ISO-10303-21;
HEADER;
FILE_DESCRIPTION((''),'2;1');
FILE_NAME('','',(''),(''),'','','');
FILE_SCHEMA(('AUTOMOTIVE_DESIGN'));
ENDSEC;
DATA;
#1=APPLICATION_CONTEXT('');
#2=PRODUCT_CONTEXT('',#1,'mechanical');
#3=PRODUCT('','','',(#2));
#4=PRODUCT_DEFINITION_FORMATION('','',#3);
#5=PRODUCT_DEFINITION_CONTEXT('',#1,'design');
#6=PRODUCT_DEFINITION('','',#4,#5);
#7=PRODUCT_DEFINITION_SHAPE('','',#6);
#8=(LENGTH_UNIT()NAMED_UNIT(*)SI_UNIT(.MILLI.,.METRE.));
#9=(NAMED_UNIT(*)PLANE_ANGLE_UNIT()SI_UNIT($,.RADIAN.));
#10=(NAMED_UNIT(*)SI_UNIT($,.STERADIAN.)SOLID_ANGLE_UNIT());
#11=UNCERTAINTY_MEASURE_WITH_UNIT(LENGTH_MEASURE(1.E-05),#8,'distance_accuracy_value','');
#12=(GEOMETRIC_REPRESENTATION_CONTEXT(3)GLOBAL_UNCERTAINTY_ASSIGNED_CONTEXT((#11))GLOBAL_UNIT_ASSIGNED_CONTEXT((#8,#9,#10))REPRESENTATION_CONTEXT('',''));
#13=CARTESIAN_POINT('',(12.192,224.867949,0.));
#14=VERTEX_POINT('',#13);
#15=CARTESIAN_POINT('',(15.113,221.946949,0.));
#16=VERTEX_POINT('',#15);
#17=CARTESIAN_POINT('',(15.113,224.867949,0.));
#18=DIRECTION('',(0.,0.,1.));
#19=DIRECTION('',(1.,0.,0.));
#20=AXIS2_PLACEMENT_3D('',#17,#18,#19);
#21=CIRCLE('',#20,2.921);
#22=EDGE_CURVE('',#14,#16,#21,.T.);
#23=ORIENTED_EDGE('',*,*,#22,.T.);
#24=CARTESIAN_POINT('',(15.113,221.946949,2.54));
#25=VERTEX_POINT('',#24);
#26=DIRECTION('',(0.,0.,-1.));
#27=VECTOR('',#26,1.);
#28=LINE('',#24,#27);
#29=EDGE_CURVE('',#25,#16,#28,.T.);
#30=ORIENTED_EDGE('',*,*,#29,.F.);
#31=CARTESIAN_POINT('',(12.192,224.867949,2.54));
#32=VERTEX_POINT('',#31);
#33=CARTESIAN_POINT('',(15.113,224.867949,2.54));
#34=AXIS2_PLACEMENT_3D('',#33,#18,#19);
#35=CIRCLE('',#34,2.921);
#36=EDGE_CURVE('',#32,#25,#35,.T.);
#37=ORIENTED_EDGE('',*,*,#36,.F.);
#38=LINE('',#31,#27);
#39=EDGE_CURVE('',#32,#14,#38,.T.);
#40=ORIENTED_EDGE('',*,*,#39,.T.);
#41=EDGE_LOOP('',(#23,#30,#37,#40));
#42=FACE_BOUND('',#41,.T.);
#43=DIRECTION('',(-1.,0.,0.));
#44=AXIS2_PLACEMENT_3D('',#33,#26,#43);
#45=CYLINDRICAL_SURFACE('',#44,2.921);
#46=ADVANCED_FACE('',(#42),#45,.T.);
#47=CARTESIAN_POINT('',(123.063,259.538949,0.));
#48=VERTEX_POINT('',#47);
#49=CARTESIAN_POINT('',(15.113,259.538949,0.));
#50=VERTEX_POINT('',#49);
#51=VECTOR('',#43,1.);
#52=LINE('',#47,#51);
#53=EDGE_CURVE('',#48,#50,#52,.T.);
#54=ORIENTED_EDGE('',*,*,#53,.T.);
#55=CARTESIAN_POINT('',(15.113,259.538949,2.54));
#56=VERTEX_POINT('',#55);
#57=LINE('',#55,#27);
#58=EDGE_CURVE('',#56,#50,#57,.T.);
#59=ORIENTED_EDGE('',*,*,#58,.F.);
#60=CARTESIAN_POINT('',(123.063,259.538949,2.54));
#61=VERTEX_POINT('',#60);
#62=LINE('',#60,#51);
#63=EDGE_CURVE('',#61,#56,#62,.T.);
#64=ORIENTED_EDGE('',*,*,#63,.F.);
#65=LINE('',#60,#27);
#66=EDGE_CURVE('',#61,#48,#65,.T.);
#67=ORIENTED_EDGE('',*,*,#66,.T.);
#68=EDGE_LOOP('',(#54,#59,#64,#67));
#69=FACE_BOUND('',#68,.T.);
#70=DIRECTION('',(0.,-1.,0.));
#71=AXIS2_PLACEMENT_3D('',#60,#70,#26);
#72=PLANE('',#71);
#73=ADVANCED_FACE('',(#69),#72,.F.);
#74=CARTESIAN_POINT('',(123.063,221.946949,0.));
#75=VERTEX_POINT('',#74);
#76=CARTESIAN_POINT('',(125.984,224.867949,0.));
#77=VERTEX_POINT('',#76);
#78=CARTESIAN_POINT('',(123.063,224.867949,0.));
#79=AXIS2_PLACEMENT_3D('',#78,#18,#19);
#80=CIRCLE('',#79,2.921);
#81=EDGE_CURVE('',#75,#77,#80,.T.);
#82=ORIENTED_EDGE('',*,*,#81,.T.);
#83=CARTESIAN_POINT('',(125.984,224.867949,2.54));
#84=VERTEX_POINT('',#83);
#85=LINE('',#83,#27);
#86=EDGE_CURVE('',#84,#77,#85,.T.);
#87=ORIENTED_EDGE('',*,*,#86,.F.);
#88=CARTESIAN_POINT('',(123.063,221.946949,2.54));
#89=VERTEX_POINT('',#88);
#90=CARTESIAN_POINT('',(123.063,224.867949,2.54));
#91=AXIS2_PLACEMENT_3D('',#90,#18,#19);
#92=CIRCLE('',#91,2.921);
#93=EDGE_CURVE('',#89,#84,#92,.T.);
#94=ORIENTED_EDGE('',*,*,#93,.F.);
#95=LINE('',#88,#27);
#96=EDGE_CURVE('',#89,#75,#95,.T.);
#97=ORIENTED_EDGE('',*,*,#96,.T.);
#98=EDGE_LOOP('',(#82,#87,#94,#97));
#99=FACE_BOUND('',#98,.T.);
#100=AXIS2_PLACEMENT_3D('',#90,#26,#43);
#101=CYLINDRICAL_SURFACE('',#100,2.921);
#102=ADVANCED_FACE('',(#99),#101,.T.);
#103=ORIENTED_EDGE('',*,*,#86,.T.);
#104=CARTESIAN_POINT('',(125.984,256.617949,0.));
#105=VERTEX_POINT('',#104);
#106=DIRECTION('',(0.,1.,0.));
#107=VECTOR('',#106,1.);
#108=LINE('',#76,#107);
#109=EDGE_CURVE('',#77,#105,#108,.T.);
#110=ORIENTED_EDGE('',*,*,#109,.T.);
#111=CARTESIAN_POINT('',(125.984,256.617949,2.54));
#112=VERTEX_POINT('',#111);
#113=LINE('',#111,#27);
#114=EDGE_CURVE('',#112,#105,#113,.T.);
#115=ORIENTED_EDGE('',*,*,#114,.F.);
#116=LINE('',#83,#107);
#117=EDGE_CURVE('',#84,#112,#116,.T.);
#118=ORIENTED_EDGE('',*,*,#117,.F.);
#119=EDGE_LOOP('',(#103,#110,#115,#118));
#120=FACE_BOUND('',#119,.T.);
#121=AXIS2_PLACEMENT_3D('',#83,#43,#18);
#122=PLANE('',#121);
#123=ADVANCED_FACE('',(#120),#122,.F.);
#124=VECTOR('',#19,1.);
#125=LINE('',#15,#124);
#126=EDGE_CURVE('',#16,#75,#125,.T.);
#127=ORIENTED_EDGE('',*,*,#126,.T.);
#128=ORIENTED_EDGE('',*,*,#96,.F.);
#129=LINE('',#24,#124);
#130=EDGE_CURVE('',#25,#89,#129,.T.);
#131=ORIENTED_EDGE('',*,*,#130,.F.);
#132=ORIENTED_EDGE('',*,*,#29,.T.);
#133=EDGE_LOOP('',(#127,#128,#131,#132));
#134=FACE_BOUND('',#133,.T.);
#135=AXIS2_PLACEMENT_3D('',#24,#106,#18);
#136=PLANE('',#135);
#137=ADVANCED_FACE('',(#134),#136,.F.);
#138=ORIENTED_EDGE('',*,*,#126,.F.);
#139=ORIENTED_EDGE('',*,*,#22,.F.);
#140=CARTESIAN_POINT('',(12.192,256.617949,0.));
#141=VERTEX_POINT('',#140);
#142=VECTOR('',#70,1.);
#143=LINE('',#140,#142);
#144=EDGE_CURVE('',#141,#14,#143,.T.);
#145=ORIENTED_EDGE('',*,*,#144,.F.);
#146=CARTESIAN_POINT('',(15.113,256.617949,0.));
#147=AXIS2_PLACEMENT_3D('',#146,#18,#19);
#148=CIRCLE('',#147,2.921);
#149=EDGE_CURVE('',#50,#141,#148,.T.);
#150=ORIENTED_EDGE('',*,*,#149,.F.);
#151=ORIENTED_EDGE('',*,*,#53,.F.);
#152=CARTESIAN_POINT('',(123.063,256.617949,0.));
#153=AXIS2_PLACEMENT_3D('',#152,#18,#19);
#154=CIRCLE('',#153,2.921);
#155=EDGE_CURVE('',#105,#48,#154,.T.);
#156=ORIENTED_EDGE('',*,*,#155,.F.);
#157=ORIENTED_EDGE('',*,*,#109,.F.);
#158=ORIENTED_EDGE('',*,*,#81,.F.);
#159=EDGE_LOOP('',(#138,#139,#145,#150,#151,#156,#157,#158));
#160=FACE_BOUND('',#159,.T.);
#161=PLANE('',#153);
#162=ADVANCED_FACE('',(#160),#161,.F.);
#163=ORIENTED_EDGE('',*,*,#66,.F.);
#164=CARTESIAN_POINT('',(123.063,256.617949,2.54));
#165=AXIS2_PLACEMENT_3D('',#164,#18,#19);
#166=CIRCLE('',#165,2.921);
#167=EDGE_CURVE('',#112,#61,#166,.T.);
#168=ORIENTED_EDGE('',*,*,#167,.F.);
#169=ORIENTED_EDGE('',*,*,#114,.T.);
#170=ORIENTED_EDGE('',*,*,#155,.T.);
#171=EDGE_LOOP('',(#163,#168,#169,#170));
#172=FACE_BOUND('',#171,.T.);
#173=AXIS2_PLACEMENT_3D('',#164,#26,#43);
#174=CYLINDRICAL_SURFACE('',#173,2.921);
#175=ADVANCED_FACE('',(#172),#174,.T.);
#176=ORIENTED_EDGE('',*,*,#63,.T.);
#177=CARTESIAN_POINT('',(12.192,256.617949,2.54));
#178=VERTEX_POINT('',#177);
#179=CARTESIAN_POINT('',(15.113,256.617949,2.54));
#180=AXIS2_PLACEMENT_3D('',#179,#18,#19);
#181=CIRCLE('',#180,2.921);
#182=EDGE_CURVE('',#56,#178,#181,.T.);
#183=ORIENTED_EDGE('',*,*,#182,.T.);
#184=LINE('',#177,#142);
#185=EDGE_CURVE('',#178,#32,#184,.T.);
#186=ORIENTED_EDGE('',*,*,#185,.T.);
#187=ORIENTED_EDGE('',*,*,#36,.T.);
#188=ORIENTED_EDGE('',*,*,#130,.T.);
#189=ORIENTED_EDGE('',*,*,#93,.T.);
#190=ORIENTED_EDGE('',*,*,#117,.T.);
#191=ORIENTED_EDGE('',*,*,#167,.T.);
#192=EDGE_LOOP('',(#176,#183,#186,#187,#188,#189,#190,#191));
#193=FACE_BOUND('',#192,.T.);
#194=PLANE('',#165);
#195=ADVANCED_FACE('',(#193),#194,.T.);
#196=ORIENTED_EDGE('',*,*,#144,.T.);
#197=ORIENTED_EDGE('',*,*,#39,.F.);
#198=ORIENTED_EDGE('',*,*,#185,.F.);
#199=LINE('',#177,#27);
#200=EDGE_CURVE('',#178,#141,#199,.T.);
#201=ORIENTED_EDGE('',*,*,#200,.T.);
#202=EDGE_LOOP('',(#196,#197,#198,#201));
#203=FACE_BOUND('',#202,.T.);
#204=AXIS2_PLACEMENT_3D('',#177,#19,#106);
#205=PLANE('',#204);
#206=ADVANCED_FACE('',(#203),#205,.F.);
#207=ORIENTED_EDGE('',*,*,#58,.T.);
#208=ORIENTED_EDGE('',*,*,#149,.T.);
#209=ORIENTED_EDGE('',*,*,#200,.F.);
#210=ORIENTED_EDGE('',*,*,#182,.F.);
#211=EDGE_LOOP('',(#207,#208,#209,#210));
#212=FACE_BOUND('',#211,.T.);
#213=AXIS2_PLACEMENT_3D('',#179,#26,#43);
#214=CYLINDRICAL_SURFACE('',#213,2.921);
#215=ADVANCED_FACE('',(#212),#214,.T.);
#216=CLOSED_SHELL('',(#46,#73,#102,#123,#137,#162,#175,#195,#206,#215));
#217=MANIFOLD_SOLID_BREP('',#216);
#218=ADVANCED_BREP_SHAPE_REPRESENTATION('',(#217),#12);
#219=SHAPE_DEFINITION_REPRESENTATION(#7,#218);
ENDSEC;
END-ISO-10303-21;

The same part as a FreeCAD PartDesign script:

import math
import FreeCAD as App
import Part
import Sketcher

V = App.Vector
Q = App.Units.Quantity

doc = App.newDocument("Part")
body = doc.addObject("PartDesign::Body", "Body")

# Sketch on XY plane
sketch1 = body.newObject("Sketcher::SketchObject", "Sketch")
sketch1.AttachmentSupport = (doc.getObject("XY_Plane"), [""])
sketch1.MapMode = "FlatFace"
sketch1.addGeometry(Part.LineSegment(V(123.063, 259.538949, 0), V(15.113, 259.538949, 0)), False)
sketch1.addGeometry(Part.ArcOfCircle(Part.Circle(V(15.113, 256.617949, 0), V(0, 0, 1), 2.921), math.radians(90), math.radians(180)), False)
sketch1.addGeometry(Part.LineSegment(V(12.192, 256.617949, 0), V(12.192, 224.867949, 0)), False)
sketch1.addGeometry(Part.ArcOfCircle(Part.Circle(V(15.113, 224.867949, 0), V(0, 0, 1), 2.921), math.radians(180), math.radians(270)), False)
sketch1.addGeometry(Part.LineSegment(V(15.113, 221.946949, 0), V(123.063, 221.946949, 0)), False)
sketch1.addGeometry(Part.ArcOfCircle(Part.Circle(V(123.063, 224.867949, 0), V(0, 0, 1), 2.921), math.radians(-90), math.radians(0)), False)
sketch1.addGeometry(Part.LineSegment(V(125.984, 224.867949, 0), V(125.984, 256.617949, 0)), False)
sketch1.addGeometry(Part.ArcOfCircle(Part.Circle(V(123.063, 256.617949, 0), V(0, 0, 1), 2.921), math.radians(0), math.radians(90)), False)
sketch1.addConstraint(Sketcher.Constraint("Tangent", 0, 2, 1, 1))
sketch1.addConstraint(Sketcher.Constraint("Tangent", 1, 2, 2, 1))
sketch1.addConstraint(Sketcher.Constraint("Tangent", 2, 2, 3, 1))
sketch1.addConstraint(Sketcher.Constraint("Tangent", 3, 2, 4, 1))
sketch1.addConstraint(Sketcher.Constraint("Tangent", 4, 2, 5, 1))
sketch1.addConstraint(Sketcher.Constraint("Tangent", 5, 2, 6, 1))
sketch1.addConstraint(Sketcher.Constraint("Tangent", 6, 2, 7, 1))
sketch1.addConstraint(Sketcher.Constraint("Tangent", 7, 2, 0, 1))
sketch1.addConstraint(Sketcher.Constraint("Horizontal", 0))
sketch1.addConstraint(Sketcher.Constraint("Vertical", 2))
sketch1.addConstraint(Sketcher.Constraint("Horizontal", 4))
sketch1.addConstraint(Sketcher.Constraint("Vertical", 6))
sketch1.addConstraint(Sketcher.Constraint("Equal", 1, 3))
sketch1.addConstraint(Sketcher.Constraint("Equal", 3, 5))
sketch1.addConstraint(Sketcher.Constraint("Equal", 5, 7))
sketch1.addConstraint(Sketcher.Constraint("Radius", 1, Q("0.115 in")))
sketch1.addConstraint(Sketcher.Constraint("DistanceX", 0, 2, 0, 1, Q("4.25 in")))
sketch1.addConstraint(Sketcher.Constraint("DistanceY", 2, 2, 2, 1, Q("1.25 in")))
sketch1.addConstraint(Sketcher.Constraint("DistanceX", -1, 1, 1, 2, Q("0.48 in")))
sketch1.addConstraint(Sketcher.Constraint("DistanceY", -1, 1, 1, 3, 256.617949))
pad1 = body.newObject("PartDesign::Pad", "Pad")
pad1.Profile = sketch1
pad1.Length = Q("0.1 in")

doc.recompute()
